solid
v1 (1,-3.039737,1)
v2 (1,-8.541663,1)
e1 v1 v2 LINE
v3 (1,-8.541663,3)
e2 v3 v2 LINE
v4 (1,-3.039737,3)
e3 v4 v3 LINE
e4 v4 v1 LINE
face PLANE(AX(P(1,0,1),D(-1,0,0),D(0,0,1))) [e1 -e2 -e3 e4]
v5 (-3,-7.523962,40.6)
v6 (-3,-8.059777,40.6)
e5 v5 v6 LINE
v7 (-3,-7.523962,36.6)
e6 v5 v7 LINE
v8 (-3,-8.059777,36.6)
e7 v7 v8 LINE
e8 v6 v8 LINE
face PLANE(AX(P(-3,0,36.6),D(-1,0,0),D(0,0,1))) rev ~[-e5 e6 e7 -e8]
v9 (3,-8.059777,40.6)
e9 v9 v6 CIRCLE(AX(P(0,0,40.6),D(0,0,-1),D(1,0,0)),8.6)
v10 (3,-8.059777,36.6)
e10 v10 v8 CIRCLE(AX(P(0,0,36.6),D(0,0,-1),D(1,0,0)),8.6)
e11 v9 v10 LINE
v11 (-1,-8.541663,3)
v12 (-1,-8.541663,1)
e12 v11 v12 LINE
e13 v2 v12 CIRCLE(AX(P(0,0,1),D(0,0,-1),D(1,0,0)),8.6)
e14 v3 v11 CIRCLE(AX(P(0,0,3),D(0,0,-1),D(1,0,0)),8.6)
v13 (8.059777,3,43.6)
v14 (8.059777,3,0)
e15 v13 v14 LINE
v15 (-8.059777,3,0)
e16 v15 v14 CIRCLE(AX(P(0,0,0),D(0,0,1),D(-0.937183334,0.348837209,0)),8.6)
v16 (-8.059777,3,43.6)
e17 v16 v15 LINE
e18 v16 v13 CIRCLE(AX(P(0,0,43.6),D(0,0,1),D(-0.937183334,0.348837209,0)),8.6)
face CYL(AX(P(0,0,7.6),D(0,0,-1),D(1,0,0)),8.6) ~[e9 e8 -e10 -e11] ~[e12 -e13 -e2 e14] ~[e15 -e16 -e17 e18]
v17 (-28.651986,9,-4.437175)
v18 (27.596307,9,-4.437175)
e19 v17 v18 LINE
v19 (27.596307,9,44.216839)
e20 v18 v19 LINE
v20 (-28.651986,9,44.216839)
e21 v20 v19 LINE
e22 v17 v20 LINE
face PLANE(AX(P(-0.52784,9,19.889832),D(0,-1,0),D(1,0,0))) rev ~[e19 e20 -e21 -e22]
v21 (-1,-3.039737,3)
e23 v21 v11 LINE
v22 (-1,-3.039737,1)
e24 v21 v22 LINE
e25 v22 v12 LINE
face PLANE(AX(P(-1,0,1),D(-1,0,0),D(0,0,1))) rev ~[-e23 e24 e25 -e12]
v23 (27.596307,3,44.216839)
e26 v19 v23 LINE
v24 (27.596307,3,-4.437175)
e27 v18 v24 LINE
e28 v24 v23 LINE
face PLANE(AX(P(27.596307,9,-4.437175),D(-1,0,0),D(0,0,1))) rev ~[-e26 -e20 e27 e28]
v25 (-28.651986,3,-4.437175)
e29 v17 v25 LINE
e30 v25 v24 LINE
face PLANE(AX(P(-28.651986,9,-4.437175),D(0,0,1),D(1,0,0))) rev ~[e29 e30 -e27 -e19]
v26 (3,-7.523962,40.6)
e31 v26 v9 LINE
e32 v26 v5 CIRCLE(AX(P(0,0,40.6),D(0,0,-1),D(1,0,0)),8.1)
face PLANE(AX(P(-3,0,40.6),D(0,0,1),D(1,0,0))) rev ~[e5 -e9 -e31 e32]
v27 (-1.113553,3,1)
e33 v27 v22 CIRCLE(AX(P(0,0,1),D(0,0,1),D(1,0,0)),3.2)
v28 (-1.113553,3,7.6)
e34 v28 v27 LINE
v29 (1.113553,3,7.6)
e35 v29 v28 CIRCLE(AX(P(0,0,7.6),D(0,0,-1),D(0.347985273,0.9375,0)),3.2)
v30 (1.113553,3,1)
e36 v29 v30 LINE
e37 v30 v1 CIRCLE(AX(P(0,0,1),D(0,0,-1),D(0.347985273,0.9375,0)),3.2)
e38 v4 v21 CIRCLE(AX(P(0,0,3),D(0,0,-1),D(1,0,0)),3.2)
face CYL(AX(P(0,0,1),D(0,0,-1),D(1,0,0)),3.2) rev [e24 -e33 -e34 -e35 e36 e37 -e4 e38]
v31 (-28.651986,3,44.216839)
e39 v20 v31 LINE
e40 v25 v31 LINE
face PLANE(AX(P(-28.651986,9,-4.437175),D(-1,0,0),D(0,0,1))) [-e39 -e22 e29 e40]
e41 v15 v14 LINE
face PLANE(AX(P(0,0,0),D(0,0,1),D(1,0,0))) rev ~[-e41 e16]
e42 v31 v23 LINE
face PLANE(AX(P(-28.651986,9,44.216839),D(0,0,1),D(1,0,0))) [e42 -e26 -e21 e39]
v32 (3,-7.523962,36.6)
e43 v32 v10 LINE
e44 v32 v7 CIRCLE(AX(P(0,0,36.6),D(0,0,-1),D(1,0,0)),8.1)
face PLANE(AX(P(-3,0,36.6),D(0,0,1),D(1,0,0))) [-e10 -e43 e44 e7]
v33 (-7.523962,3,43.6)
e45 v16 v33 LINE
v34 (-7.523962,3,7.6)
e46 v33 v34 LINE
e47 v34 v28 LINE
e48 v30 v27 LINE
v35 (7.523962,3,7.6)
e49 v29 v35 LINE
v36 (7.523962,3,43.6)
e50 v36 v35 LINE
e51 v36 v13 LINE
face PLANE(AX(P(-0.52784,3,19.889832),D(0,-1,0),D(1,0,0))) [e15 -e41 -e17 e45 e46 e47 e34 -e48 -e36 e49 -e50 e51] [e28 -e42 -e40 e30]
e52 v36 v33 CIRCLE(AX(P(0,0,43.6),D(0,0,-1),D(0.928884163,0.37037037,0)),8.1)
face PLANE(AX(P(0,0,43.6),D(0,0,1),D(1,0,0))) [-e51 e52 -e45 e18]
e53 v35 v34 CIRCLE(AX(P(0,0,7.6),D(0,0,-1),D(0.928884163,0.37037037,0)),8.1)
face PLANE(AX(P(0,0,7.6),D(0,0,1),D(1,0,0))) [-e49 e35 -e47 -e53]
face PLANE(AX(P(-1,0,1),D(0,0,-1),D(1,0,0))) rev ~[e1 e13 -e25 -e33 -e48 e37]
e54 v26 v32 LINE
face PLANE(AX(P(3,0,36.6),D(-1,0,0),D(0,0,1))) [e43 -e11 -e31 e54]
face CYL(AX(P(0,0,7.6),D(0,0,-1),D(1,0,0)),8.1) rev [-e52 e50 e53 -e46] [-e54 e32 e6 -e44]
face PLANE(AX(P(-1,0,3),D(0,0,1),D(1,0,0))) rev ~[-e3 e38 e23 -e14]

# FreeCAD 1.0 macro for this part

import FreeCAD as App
import Part
import Sketcher
Q = App.Units.Quantity


def add_polygon(sketch, points):
    """Adds a closed chain of lines whose ends are joined by coincident constraints."""
    first, n = sketch.GeometryCount, len(points)
    for a, b in zip(points, points[1:] + points[:1]):
        sketch.addGeometry(Part.LineSegment(App.Vector(*a, 0), App.Vector(*b, 0)), False)
    for i in range(n):
        sketch.addConstraint(Sketcher.Constraint("Coincident", first + i, 2, first + (i + 1) % n, 1))

doc = App.newDocument("Part")
params = doc.addObject("Spreadsheet::Sheet", "Params")
for row, (alias, value) in enumerate([
    ("sketch1_diameter", "17.2 mm"),
    ("pad1_length", "1 mm"),
    ("sketch2_diameter", "17.2 mm"),
    ("sketch2_diameter2", "6.4 mm"),
    ("pad2_length", "6.6 mm"),
    ("sketch3_width", "2 mm"),
    ("sketch4_diameter", "17.2 mm"),
    ("sketch4_diameter2", "16.2 mm"),
    ("pad3_length", "36 mm"),
    ("sketch5_width", "6 mm"),
    ("sketch5_height", "4 mm"),
    ("pad4_length", "6 mm"),
], start=1):
    params.set(f"A{row}", alias)
    params.set(f"B{row}", "=" + value)
    params.setAlias(f"B{row}", alias)

body = doc.addObject("PartDesign::Body", "Body")

# Sketch on XY plane
sketch1 = body.newObject("Sketcher::SketchObject", "Sketch")
sketch1.AttachmentSupport = (doc.getObject("XY_Plane"), [""])
sketch1.MapMode = "FlatFace"
sketch1.addGeometry(Part.Circle(App.Vector(0, 0, 0), App.Vector(0, 0, 1), 9), False)
sketch1.addConstraint([
    Sketcher.Constraint("Coincident", 0, 3, -1, 1),
    Sketcher.Constraint("Diameter", 0, Q("17.2 mm")),
])
sketch1.setExpression("Constraints[1]", "Params.sketch1_diameter")
pad1 = body.newObject("PartDesign::Pad", "Pad")
pad1.Profile = sketch1
pad1.setExpression("Length", "Params.pad1_length")

# Sketch on XY plane
sketch2 = body.newObject("Sketcher::SketchObject", "Sketch001")
sketch2.AttachmentSupport = (doc.getObject("XY_Plane"), [""])
sketch2.MapMode = "FlatFace"
sketch2.AttachmentOffset = App.Placement(App.Vector(0, 0, 1), App.Rotation())
sketch2.addGeometry([
    Part.Circle(App.Vector(0, 0, 0), App.Vector(0, 0, 1), 8.6),
    Part.Circle(App.Vector(0, 0, 0), App.Vector(0, 0, 1), 3.2),
], False)
sketch2.addConstraint([
    Sketcher.Constraint("Coincident", 0, 3, -1, 1),
    Sketcher.Constraint("Coincident", 1, 3, -1, 1),
    Sketcher.Constraint("Diameter", 0, Q("17.2 mm")),
    Sketcher.Constraint("Diameter", 1, Q("6.4 mm")),
])
sketch2.setExpression("Constraints[2]", "Params.sketch2_diameter")
sketch2.setExpression("Constraints[3]", "Params.sketch2_diameter2")
pad2 = body.newObject("PartDesign::Pad", "Pad001")
pad2.Profile = sketch2
pad2.setExpression("Length", "Params.pad2_length")

# Sketch on XZ plane
sketch3 = body.newObject("Sketcher::SketchObject", "Sketch002")
sketch3.AttachmentSupport = (doc.getObject("XZ_Plane"), [""])
sketch3.MapMode = "FlatFace"
add_polygon(sketch3, [(-1, 3), (-1, 1), (1, 1), (1, 3)])  # lines 0-3
sketch3.addConstraint([
    Sketcher.Constraint("Vertical", 0),
    Sketcher.Constraint("Horizontal", 1),
    Sketcher.Constraint("Vertical", 2),
    Sketcher.Constraint("Horizontal", 3),
    Sketcher.Constraint("Equal", 3, 0),
    Sketcher.Constraint("DistanceX", 1, 1, 1, 2, Q("2 mm")),
    Sketcher.Constraint("DistanceX", 0, 2, -1, 1, Q("1 mm")),
    Sketcher.Constraint("DistanceY", -1, 1, 0, 2, Q("1 mm")),
])
sketch3.setExpression("Constraints[9]", "Params.sketch3_width")
pocket1 = body.newObject("PartDesign::Pocket", "Pocket")
pocket1.Profile = sketch3
pocket1.Type = "ThroughAll"
pocket1.Midplane = True

# Sketch on XY plane
sketch4 = body.newObject("Sketcher::SketchObject", "Sketch003")
sketch4.AttachmentSupport = (doc.getObject("XY_Plane"), [""])
sketch4.MapMode = "FlatFace"
sketch4.AttachmentOffset = App.Placement(App.Vector(0, 0, 7.6), App.Rotation())
sketch4.addGeometry([
    Part.Circle(App.Vector(0, 0, 0), App.Vector(0, 0, 1), 9),
    Part.Circle(App.Vector(0, 0, 0), App.Vector(0, 0, 1), 8),
], False)
sketch4.addConstraint([
    Sketcher.Constraint("Coincident", 0, 3, -1, 1),
    Sketcher.Constraint("Coincident", 1, 3, -1, 1),
    Sketcher.Constraint("Diameter", 0, Q("17.2 mm")),
    Sketcher.Constraint("Diameter", 1, Q("16.2 mm")),
])
sketch4.setExpression("Constraints[2]", "Params.sketch4_diameter")
sketch4.setExpression("Constraints[3]", "Params.sketch4_diameter2")
pad3 = body.newObject("PartDesign::Pad", "Pad002")
pad3.Profile = sketch4
pad3.setExpression("Length", "Params.pad3_length")

# Sketch on XZ plane
sketch5 = body.newObject("Sketcher::SketchObject", "Sketch004")
sketch5.AttachmentSupport = (doc.getObject("XZ_Plane"), [""])
sketch5.MapMode = "FlatFace"
add_polygon(sketch5, [(-3, 40.6), (-3, 36.6), (3, 36.6), (3, 40.6)])  # lines 0-3
sketch5.addConstraint([
    Sketcher.Constraint("Vertical", 0),
    Sketcher.Constraint("Horizontal", 1),
    Sketcher.Constraint("Vertical", 2),
    Sketcher.Constraint("Horizontal", 3),
    Sketcher.Constraint("DistanceX", 1, 1, 1, 2, Q("6 mm")),
    Sketcher.Constraint("DistanceY", 0, 2, 0, 1, Q("4 mm")),
    Sketcher.Constraint("DistanceX", 0, 2, -1, 1, Q("3 mm")),
    Sketcher.Constraint("DistanceY", -1, 1, 0, 2, Q("36.6 mm")),
])
sketch5.setExpression("Constraints[8]", "Params.sketch5_width")
sketch5.setExpression("Constraints[9]", "Params.sketch5_height")
pocket2 = body.newObject("PartDesign::Pocket", "Pocket001")
pocket2.Profile = sketch5
pocket2.Type = "ThroughAll"
pocket2.Midplane = True

# Sketch on XZ plane
sketch6 = body.newObject("Sketcher::SketchObject", "Sketch005")
sketch6.AttachmentSupport = (doc.getObject("XZ_Plane"), [""])
sketch6.MapMode = "FlatFace"
sketch6.AttachmentOffset = App.Placement(App.Vector(0, 0, -9), App.Rotation())
add_polygon(sketch6, [(-29, 44), (-29, -4), (28, -4), (28, 44)])  # lines 0-3
sketch6.addConstraint([
    Sketcher.Constraint("Vertical", 0),
    Sketcher.Constraint("Horizontal", 1),
    Sketcher.Constraint("Vertical", 2),
    Sketcher.Constraint("Horizontal", 3),
    Sketcher.Constraint("DistanceX", 1, 1, 1, 2, Q("56.248293 mm")),
    Sketcher.Constraint("DistanceY", 0, 2, 0, 1, Q("48.654014 mm")),
    Sketcher.Constraint("DistanceY", -1, 1, 2, 2, Q("44.216839 mm")),
    Sketcher.Constraint("DistanceX", 0, 2, -1, 1, Q("28.651986 mm")),
])
pad4 = body.newObject("PartDesign::Pad", "Pad003")
pad4.Profile = sketch6
pad4.setExpression("Length", "Params.pad4_length")

doc.recompute()
